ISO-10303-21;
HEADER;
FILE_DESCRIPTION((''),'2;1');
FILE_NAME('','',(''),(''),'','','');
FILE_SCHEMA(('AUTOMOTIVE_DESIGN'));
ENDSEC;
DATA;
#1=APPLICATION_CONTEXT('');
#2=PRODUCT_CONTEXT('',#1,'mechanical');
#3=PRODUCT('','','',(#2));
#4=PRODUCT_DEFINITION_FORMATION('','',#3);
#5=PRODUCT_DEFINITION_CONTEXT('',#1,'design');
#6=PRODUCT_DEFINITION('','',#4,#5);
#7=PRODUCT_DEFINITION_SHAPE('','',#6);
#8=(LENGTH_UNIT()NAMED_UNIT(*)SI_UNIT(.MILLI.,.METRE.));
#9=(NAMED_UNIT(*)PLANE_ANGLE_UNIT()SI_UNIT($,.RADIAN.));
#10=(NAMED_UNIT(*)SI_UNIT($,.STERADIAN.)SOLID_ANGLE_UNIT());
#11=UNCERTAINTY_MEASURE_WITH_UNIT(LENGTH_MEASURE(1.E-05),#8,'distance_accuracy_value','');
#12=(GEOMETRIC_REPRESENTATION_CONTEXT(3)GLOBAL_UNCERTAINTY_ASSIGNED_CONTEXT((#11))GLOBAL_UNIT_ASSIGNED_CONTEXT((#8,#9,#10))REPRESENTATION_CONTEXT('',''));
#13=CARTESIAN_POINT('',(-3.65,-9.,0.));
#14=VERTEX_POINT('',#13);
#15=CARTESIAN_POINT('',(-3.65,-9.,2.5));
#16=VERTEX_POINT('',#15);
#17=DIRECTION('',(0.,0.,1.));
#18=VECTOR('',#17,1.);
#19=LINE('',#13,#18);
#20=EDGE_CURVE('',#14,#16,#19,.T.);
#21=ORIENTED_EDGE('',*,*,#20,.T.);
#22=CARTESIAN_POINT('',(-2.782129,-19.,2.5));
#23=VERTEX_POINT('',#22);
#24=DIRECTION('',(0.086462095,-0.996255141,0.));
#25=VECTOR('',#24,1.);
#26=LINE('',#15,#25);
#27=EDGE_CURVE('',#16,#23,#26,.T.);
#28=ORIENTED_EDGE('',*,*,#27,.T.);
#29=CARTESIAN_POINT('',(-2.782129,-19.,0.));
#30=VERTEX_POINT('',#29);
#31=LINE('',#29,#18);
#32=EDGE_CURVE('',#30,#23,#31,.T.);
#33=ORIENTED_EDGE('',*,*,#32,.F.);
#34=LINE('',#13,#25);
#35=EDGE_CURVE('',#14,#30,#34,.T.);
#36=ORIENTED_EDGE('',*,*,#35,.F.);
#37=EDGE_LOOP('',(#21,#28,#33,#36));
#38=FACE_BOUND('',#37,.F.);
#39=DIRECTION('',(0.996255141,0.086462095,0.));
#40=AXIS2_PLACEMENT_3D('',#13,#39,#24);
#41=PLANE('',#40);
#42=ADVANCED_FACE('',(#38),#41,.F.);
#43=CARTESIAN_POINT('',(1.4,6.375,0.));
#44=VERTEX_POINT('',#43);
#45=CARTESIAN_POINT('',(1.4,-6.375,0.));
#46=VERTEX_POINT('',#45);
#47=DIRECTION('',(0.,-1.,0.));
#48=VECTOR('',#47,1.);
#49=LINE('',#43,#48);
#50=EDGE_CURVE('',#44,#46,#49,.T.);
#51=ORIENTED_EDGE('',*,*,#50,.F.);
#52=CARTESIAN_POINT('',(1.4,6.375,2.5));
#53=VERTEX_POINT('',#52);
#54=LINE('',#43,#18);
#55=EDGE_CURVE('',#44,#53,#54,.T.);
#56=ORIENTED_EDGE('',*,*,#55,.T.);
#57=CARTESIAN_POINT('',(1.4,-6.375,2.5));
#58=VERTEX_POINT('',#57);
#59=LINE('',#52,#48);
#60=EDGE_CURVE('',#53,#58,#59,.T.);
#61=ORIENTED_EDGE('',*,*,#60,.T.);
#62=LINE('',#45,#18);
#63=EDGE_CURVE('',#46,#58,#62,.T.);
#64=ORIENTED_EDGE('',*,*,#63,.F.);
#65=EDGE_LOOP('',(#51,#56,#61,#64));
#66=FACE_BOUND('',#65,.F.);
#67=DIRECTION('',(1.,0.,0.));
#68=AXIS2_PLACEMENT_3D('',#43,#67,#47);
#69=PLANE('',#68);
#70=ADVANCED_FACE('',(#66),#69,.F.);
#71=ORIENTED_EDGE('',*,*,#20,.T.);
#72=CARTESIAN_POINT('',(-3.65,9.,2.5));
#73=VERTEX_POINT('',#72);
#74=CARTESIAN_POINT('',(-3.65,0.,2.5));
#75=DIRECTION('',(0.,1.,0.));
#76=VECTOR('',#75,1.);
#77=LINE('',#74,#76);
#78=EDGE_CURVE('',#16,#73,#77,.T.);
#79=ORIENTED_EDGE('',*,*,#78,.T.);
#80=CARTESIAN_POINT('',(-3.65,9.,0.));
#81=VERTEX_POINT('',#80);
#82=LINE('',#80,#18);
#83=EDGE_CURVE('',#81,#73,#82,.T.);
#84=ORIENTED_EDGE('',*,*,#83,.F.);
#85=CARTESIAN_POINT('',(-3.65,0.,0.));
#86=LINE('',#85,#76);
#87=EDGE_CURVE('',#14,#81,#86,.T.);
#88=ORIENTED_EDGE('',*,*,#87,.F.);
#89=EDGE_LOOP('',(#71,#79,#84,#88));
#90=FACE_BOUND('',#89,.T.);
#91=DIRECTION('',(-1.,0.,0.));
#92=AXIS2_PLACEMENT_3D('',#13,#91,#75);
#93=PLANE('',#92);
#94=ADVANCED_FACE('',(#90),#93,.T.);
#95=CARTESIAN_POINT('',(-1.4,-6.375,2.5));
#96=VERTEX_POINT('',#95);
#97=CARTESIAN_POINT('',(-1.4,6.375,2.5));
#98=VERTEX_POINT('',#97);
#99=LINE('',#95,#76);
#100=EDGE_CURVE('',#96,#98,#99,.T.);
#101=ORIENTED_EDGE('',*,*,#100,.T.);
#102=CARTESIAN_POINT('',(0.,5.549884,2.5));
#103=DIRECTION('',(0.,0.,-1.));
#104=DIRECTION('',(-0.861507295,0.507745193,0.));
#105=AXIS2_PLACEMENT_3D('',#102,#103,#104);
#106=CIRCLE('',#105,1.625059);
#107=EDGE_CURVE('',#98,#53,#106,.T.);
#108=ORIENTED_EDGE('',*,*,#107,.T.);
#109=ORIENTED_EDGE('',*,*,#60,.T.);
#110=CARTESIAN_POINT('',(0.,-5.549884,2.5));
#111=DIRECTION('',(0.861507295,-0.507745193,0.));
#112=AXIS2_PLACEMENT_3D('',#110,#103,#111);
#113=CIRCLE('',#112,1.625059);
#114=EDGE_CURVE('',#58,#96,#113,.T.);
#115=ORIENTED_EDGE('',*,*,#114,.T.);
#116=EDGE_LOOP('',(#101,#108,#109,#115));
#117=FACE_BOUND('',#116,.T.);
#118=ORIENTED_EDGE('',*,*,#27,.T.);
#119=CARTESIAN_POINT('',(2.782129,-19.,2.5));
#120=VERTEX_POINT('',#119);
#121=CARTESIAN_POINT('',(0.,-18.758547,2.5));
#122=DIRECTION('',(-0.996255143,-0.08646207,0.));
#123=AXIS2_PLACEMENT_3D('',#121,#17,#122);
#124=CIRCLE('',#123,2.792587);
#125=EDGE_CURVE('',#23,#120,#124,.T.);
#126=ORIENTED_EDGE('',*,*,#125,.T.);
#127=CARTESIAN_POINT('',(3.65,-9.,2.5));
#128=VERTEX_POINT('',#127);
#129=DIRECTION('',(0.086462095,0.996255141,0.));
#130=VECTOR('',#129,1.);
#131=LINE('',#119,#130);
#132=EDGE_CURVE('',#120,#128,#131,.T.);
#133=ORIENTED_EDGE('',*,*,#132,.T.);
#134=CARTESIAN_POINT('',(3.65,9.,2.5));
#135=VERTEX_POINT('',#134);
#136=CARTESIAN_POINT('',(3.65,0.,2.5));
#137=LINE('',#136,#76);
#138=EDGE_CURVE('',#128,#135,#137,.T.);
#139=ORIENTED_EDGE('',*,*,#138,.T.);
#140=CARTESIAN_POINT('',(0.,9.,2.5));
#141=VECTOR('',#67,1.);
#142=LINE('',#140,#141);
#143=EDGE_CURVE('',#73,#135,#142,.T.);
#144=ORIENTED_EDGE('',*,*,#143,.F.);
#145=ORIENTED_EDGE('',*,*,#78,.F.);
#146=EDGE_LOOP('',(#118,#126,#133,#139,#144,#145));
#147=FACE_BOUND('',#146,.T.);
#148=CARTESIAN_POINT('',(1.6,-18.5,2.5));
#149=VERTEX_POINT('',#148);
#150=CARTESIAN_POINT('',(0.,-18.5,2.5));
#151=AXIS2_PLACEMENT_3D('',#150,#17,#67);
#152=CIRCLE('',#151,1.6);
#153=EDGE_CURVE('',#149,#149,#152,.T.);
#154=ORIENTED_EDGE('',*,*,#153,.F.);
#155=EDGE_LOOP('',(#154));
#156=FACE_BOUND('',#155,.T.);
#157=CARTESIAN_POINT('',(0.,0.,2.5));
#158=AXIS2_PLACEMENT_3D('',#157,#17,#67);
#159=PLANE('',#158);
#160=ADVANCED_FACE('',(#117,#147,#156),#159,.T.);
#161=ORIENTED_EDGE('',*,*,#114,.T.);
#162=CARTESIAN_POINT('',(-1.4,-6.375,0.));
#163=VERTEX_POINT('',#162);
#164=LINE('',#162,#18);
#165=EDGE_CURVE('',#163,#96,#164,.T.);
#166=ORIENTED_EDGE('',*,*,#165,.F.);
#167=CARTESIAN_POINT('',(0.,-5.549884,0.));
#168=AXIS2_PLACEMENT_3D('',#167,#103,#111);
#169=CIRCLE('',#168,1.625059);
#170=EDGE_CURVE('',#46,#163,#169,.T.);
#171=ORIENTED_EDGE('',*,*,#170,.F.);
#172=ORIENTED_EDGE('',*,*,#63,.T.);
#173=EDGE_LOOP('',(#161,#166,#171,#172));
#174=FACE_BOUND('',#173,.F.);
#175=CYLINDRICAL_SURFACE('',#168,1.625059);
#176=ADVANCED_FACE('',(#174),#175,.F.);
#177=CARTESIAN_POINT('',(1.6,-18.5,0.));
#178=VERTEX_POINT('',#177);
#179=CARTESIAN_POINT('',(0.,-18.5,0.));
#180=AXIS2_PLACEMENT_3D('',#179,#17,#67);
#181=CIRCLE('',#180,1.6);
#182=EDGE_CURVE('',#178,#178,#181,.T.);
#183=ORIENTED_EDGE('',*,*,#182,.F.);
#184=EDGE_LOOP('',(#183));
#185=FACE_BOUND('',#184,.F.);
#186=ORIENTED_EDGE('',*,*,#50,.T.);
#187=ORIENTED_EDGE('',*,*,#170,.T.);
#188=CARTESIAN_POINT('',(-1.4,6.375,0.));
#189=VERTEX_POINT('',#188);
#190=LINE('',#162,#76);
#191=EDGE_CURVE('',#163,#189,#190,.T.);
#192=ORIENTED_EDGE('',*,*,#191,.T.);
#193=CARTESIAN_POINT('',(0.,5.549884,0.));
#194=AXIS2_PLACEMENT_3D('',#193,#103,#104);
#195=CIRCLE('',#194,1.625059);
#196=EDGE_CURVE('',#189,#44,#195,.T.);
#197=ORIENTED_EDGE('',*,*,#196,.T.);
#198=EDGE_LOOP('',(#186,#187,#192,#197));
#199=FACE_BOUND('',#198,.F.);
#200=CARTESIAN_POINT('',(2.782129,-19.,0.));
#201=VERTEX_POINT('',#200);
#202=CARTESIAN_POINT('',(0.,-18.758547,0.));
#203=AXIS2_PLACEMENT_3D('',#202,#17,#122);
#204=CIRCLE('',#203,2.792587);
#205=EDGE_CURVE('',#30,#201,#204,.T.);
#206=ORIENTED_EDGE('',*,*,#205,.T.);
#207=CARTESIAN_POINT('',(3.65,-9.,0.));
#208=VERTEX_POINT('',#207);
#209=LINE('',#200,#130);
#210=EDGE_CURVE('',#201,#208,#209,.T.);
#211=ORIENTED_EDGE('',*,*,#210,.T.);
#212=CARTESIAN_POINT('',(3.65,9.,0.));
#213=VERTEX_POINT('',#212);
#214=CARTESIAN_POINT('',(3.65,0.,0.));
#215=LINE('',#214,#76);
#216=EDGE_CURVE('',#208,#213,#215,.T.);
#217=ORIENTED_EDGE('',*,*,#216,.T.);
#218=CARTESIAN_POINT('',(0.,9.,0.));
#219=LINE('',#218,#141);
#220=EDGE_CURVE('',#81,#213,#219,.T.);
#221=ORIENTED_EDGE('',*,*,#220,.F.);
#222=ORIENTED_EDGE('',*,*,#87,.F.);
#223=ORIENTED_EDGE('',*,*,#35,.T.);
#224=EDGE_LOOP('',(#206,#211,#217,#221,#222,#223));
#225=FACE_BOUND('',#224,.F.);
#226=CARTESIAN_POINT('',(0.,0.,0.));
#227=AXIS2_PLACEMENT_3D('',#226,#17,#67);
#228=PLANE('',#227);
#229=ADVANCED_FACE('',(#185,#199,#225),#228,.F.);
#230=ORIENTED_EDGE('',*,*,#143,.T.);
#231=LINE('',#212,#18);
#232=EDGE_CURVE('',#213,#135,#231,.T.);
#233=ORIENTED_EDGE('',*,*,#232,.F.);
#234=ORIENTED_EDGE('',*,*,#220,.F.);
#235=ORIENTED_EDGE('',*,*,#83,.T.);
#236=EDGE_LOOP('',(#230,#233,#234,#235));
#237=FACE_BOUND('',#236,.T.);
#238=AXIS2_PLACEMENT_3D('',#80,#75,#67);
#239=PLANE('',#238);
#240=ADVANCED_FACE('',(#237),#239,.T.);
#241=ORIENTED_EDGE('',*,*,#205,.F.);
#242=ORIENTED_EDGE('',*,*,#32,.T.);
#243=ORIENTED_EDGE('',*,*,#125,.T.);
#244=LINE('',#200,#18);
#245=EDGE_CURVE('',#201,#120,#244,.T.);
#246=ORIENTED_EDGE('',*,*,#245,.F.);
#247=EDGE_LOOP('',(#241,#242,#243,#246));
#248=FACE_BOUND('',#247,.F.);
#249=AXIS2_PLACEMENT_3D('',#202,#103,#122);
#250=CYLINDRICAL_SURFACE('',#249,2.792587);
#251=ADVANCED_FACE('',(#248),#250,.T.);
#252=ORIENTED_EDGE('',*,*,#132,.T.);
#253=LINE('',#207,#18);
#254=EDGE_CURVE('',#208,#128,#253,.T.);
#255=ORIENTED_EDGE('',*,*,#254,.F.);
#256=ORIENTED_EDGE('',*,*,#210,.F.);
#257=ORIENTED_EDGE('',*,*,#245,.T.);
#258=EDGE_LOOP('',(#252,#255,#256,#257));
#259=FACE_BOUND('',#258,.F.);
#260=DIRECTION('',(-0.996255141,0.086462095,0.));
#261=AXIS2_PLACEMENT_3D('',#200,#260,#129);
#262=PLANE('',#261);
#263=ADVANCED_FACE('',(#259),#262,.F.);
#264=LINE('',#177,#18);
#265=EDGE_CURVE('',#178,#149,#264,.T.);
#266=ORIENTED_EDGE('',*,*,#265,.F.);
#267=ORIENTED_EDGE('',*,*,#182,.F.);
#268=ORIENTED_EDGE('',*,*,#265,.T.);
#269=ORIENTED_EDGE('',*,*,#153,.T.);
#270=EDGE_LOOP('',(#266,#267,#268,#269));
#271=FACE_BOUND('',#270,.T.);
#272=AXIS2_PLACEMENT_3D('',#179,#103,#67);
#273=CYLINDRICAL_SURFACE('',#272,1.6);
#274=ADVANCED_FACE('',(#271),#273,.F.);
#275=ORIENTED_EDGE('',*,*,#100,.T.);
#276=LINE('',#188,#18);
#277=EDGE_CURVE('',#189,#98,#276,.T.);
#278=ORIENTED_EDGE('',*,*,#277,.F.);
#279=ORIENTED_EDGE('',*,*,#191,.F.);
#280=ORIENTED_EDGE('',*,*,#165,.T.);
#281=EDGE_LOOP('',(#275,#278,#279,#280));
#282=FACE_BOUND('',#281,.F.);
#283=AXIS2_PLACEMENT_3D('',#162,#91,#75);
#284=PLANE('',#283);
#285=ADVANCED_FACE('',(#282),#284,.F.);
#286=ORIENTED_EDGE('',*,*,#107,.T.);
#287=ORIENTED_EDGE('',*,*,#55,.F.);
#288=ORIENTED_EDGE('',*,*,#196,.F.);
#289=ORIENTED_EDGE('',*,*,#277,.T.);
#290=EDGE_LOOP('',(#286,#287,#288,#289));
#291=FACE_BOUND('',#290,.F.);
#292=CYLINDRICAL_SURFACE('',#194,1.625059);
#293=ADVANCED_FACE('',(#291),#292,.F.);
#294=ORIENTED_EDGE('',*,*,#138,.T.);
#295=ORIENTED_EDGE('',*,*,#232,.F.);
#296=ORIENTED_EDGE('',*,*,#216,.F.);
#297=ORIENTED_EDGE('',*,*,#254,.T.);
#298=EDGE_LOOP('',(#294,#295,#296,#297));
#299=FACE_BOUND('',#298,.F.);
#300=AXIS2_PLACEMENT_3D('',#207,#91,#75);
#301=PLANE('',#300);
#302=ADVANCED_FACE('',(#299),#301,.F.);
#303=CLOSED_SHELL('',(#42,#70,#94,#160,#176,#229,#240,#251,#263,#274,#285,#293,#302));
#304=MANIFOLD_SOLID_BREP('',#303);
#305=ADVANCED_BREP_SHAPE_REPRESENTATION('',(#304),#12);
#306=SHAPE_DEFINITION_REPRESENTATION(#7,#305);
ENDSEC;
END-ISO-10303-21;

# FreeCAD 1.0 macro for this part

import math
import FreeCAD as App
import Part
import Sketcher
from FreeCAD import Vector
Q = App.Units.Quantity

doc = App.newDocument("Part")
body = doc.addObject("PartDesign::Body", "Body")

# Sketch on XY plane
sketch1 = doc.addObject("Sketcher::SketchObject", "Sketch")
body.addObject(sketch1)
sketch1.AttachmentSupport = (doc.XY_Plane, [""])
sketch1.MapMode = "FlatFace"
sketch1.addGeometry([
    Part.LineSegment(Vector(-3.65, 9, 0), Vector(-3.65, -9, 0)),  # 0
    Part.LineSegment(Vector(-3.65, -9, 0), Vector(-2.782129, -19, 0)),  # 1
    Part.ArcOfCircle(Part.Circle(Vector(0, -18.758547, 0), Vector(0, 0, 1), 2.792587), math.radians(-175.039895), math.radians(-4.960105)),  # 2
    Part.LineSegment(Vector(2.782129, -19, 0), Vector(3.65, -9, 0)),  # 3
    Part.LineSegment(Vector(3.65, -9, 0), Vector(3.65, 9, 0)),  # 4
    Part.LineSegment(Vector(3.65, 9, 0), Vector(-3.65, 9, 0)),  # 5
    Part.Circle(Vector(0, -18.5, 0), Vector(0, 0, 1), 1.6),  # 6
    Part.LineSegment(Vector(-1.4, -6.375, 0), Vector(-1.4, 6.375, 0)),  # 7
    Part.ArcOfCircle(Part.Circle(Vector(0, 5.549884, 0), Vector(0, 0, 1), 1.625059), math.radians(30.513755), math.radians(149.486245)),  # 8
    Part.LineSegment(Vector(1.4, 6.375, 0), Vector(1.4, -6.375, 0)),  # 9
    Part.ArcOfCircle(Part.Circle(Vector(0, -5.549884, 0), Vector(0, 0, 1), 1.625059), math.radians(-149.486245), math.radians(-30.513755)),  # 10
], False)
sketch1.addConstraint([
    Sketcher.Constraint("Coincident", 0, 2, 1, 1),
    Sketcher.Constraint("Tangent", 1, 2, 2, 1),
    Sketcher.Constraint("Tangent", 2, 2, 3, 1),
    Sketcher.Constraint("Coincident", 3, 2, 4, 1),
    Sketcher.Constraint("Coincident", 4, 2, 5, 1),
    Sketcher.Constraint("Coincident", 5, 2, 0, 1),
    Sketcher.Constraint("Coincident", 7, 2, 8, 2),
    Sketcher.Constraint("Coincident", 8, 1, 9, 1),
    Sketcher.Constraint("Coincident", 9, 2, 10, 2),
    Sketcher.Constraint("Coincident", 10, 1, 7, 1),
    Sketcher.Constraint("Vertical", 0),
    Sketcher.Constraint("Vertical", 4),
    Sketcher.Constraint("Horizontal", 5),
    Sketcher.Constraint("Vertical", 7),
    Sketcher.Constraint("Vertical", 9),
    Sketcher.Constraint("Equal", 8, 10),
    Sketcher.Constraint("Symmetric", 8, 3, 10, 3, -1, 1),
    Sketcher.Constraint("Symmetric", 0, 2, 4, 2, -1, 1),
    Sketcher.Constraint("Symmetric", 1, 2, 2, 2, -2),
    Sketcher.Constraint("Symmetric", 7, 2, 8, 1, -2),
    Sketcher.Constraint("PointOnObject", 6, 3, -2),
    Sketcher.Constraint("Diameter", 6, Q("3.2 mm")),
    Sketcher.Constraint("DistanceY", 0, 2, 0, 1, Q("18 mm")),
    Sketcher.Constraint("DistanceX", 5, 2, 5, 1, Q("7.3 mm")),
    Sketcher.Constraint("DistanceY", 1, 2, -1, 1, Q("19 mm")),
    Sketcher.Constraint("DistanceY", 7, 1, 7, 2, Q("12.75 mm")),
    Sketcher.Constraint("DistanceY", 6, 3, -1, 1, Q("18.5 mm")),
    Sketcher.Constraint("DistanceX", 7, 2, -1, 1, Q("1.4 mm")),
    Sketcher.Constraint("Radius", 8, Q("1.625059 mm")),
    Sketcher.Constraint("Radius", 2, Q("2.792587 mm")),
])
pad1 = doc.addObject("PartDesign::Pad", "Pad")
body.addObject(pad1)
pad1.Profile = sketch1
pad1.Length = 2.5

doc.recompute()
